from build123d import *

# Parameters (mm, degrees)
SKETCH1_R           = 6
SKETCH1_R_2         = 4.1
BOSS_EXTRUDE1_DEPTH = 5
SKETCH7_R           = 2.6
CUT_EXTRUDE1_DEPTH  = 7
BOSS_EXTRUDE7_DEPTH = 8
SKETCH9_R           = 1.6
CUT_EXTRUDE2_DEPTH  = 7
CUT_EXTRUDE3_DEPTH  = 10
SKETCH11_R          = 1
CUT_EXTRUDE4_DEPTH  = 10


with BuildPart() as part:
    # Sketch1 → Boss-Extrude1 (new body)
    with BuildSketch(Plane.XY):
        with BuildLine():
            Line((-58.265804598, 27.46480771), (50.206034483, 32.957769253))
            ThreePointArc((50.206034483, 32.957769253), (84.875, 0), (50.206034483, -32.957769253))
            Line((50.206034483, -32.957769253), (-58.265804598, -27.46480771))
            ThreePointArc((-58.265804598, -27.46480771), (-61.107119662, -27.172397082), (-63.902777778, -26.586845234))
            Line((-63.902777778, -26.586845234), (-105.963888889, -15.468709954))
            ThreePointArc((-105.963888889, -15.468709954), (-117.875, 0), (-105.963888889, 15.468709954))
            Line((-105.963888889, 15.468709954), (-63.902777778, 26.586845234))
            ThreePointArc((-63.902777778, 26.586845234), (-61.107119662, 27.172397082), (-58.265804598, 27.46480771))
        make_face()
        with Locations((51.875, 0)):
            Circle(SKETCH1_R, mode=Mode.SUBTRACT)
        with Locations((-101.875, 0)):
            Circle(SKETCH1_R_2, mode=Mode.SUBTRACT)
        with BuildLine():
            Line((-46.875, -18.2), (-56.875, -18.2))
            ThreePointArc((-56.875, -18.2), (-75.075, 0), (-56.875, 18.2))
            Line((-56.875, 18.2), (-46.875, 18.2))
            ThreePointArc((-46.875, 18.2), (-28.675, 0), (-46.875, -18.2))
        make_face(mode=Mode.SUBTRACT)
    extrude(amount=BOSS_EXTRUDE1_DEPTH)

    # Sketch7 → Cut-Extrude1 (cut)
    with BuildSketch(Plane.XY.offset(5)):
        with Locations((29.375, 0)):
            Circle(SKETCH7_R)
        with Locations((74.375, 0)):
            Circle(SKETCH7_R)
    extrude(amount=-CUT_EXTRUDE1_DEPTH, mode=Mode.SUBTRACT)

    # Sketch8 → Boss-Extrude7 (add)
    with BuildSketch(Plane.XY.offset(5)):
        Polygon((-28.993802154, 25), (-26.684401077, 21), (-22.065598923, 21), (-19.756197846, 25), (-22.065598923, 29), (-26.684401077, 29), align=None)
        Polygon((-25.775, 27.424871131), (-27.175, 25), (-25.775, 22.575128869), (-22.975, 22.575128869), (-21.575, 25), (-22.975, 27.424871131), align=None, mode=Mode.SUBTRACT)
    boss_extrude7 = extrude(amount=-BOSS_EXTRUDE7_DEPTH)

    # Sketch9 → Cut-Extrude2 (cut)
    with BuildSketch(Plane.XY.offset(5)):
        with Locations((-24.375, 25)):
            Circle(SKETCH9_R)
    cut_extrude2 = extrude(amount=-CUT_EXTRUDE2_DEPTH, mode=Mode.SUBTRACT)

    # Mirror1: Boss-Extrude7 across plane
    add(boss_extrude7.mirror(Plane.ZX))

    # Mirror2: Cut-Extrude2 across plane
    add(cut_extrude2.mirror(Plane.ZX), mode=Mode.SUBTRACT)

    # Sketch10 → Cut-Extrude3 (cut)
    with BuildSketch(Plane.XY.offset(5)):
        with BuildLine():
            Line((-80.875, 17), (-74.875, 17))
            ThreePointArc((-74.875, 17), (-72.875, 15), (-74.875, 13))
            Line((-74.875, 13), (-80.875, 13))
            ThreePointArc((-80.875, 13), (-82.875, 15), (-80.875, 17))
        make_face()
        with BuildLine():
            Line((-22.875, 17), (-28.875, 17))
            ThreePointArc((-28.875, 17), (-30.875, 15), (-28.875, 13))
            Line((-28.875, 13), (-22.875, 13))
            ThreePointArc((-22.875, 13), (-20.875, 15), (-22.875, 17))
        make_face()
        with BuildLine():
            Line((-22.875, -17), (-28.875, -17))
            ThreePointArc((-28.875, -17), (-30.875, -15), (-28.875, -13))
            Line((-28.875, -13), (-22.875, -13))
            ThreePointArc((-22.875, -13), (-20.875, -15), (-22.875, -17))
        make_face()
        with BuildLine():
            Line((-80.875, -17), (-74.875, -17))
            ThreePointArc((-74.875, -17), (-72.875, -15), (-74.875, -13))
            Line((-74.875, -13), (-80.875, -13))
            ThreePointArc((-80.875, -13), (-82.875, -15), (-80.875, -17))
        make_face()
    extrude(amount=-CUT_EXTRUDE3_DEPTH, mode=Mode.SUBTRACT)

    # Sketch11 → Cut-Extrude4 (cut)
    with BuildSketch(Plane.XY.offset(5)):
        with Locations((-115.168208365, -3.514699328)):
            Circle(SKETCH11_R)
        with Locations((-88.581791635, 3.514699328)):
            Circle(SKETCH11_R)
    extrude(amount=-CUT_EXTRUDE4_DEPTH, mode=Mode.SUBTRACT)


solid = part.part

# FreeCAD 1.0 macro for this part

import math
import FreeCAD as App
import Part
import Sketcher
Q = App.Units.Quantity


def add_polygon(sketch, points):
    """Adds a closed chain of lines whose ends are joined by coincident constraints."""
    first, n = sketch.GeometryCount, len(points)
    for a, b in zip(points, points[1:] + points[:1]):
        sketch.addGeometry(Part.LineSegment(App.Vector(*a, 0), App.Vector(*b, 0)), False)
    for i in range(n):
        sketch.addConstraint(Sketcher.Constraint("Coincident", first + i, 2, first + (i + 1) % n, 1))

doc = App.newDocument("Part")
params = doc.addObject("Spreadsheet::Sheet", "Params")
for row, (alias, value) in enumerate([
    ("sketch1_diameter", "12 mm"),
    ("sketch1_radius", "16 mm"),
    ("sketch1_radius2", "33 mm"),
    ("sketch1_diameter2", "8.2 mm"),
    ("sketch1_radius3", "27.5 mm"),
    ("pad1_length", "5 mm"),
    ("sketch2_diameter", "5.2 mm"),
    ("pocket1_length", "7 mm"),
    ("sketch3_width", "2.8 mm"),
    ("sketch3_length", "2.8 mm"),
    ("pad2_length", "8 mm"),
    ("sketch4_diameter", "3.2 mm"),
    ("pocket2_length", "7 mm"),
    ("sketch5_radius", "2 mm"),
    ("sketch5_width", "6 mm"),
    ("pocket3_length", "10 mm"),
    ("sketch6_diameter", "2 mm"),
    ("pocket4_length", "10 mm"),
], start=1):
    params.set(f"A{row}", alias)
    params.set(f"B{row}", "=" + value)
    params.setAlias(f"B{row}", alias)

body = doc.addObject("PartDesign::Body", "Body")

sketch1 = body.newObject("Sketcher::SketchObject", "Sketch")
sketch1.AttachmentSupport = (doc.getObject("XY_Plane"), [""])
sketch1.MapMode = "FlatFace"
sketch1.addGeometry([
    Part.LineSegment(App.Vector(50.206034, 32.957769, 0), App.Vector(-58.265805, 27.464808, 0)),
    Part.ArcOfCircle(Part.Circle(App.Vector(-56.875, 0, 0), App.Vector(0, 0, 1), 27.5), math.radians(92.898954), math.radians(104.806507)),
    Part.LineSegment(App.Vector(-63.902778, 26.586845, 0), App.Vector(-105.963889, 15.46871, 0)),
    Part.ArcOfCircle(Part.Circle(App.Vector(-101.875, 0, 0), App.Vector(0, 0, 1), 16), math.radians(104.806507), math.radians(255.193493)),
    Part.LineSegment(App.Vector(-105.963889, -15.46871, 0), App.Vector(-63.902778, -26.586845, 0)),
    Part.ArcOfCircle(Part.Circle(App.Vector(-56.875, 0, 0), App.Vector(0, 0, 1), 27.5), math.radians(-104.806507), math.radians(-92.898954)),
    Part.LineSegment(App.Vector(-58.265805, -27.464808, 0), App.Vector(50.206034, -32.957769, 0)),
    Part.ArcOfCircle(Part.Circle(App.Vector(51.875, 0, 0), App.Vector(0, 0, 1), 33), math.radians(-92.898954), math.radians(92.898954)),
    Part.Circle(App.Vector(51.875, 0, 0), App.Vector(0, 0, 1), 6),
    Part.LineSegment(App.Vector(-46.875, -18.2, 0), App.Vector(-56.875, -18.2, 0)),
    Part.ArcOfCircle(Part.Circle(App.Vector(-56.875, 0, 0), App.Vector(0, 0, 1), 18.2), math.radians(90), math.radians(270)),
    Part.LineSegment(App.Vector(-56.875, 18.2, 0), App.Vector(-46.875, 18.2, 0)),
    Part.ArcOfCircle(Part.Circle(App.Vector(-46.875, 0, 0), App.Vector(0, 0, 1), 18.2), math.radians(-90), math.radians(90)),
    Part.Circle(App.Vector(-101.875, 0, 0), App.Vector(0, 0, 1), 4.1),
], False)
sketch1.addConstraint([
    Sketcher.Constraint("Tangent", 0, 2, 1, 1),
    Sketcher.Constraint("Tangent", 1, 2, 2, 1),
    Sketcher.Constraint("Tangent", 2, 2, 3, 1),
    Sketcher.Constraint("Tangent", 3, 2, 4, 1),
    Sketcher.Constraint("Tangent", 4, 2, 5, 1),
    Sketcher.Constraint("Tangent", 5, 2, 6, 1),
    Sketcher.Constraint("Tangent", 6, 2, 7, 1),
    Sketcher.Constraint("Tangent", 7, 2, 0, 1),
    Sketcher.Constraint("Tangent", 9, 2, 10, 2),
    Sketcher.Constraint("Tangent", 10, 1, 11, 1),
    Sketcher.Constraint("Tangent", 11, 2, 12, 2),
    Sketcher.Constraint("Tangent", 12, 1, 9, 1),
    Sketcher.Constraint("Horizontal", 9),
    Sketcher.Constraint("Horizontal", 11),
    Sketcher.Constraint("Coincident", 5, 3, 1, 3),
    Sketcher.Constraint("Coincident", 8, 3, 7, 3),
    Sketcher.Constraint("Coincident", 10, 3, 1, 3),
    Sketcher.Constraint("Coincident", 13, 3, 3, 3),
    Sketcher.Constraint("Equal", 1, 5),
    Sketcher.Constraint("Symmetric", 2, 2, 3, 2, -1),
    Sketcher.Constraint("PointOnObject", 7, 3, -1),
    Sketcher.Constraint("Diameter", 8, Q("12 mm")),
    Sketcher.Constraint("Radius", 3, Q("16 mm")),
    Sketcher.Constraint("Radius", 7, Q("33 mm")),
    Sketcher.Constraint("Diameter", 13, Q("8.2 mm")),
    Sketcher.Constraint("Radius", 1, Q("27.5 mm")),
    Sketcher.Constraint("Radius", 10, Q("18.2 mm")),
    Sketcher.Constraint("DistanceX", 9, 2, 9, 1, Q("10 mm")),
    Sketcher.Constraint("DistanceX", 3, 3, 1, 3, Q("45 mm")),
    Sketcher.Constraint("DistanceX", 1, 3, 7, 3, Q("108.75 mm")),
    Sketcher.Constraint("DistanceX", 1, 3, -1, 1, Q("56.875 mm")),
])
sketch1.setExpression("Constraints[21]", "Params.sketch1_diameter")
sketch1.setExpression("Constraints[22]", "Params.sketch1_radius")
sketch1.setExpression("Constraints[23]", "Params.sketch1_radius2")
sketch1.setExpression("Constraints[24]", "Params.sketch1_diameter2")
sketch1.setExpression("Constraints[25]", "Params.sketch1_radius3")
pad1 = body.newObject("PartDesign::Pad", "Pad")
pad1.Profile = sketch1
pad1.setExpression("Length", "Params.pad1_length")

sketch2 = body.newObject("Sketcher::SketchObject", "Sketch001")
sketch2.AttachmentSupport = (doc.getObject("XY_Plane"), [""])
sketch2.MapMode = "FlatFace"
sketch2.AttachmentOffset = App.Placement(App.Vector(0, 0, 5), App.Rotation())
sketch2.addGeometry([
    Part.Circle(App.Vector(29.375, 0, 0), App.Vector(0, 0, 1), 2.6),
    Part.Circle(App.Vector(74.375, 0, 0), App.Vector(0, 0, 1), 2.6),
], False)
sketch2.addConstraint([
    Sketcher.Constraint("Equal", 0, 1),
    Sketcher.Constraint("PointOnObject", 0, 3, -1),
    Sketcher.Constraint("PointOnObject", 1, 3, -1),
    Sketcher.Constraint("Diameter", 0, Q("5.2 mm")),
    Sketcher.Constraint("DistanceX", 0, 3, 1, 3, Q("45 mm")),
    Sketcher.Constraint("DistanceX", -1, 1, 0, 3, Q("29.375 mm")),
])
sketch2.setExpression("Constraints[3]", "Params.sketch2_diameter")
pocket1 = body.newObject("PartDesign::Pocket", "Pocket")
pocket1.Profile = sketch2
pocket1.setExpression("Length", "Params.pocket1_length")

sketch3 = body.newObject("Sketcher::SketchObject", "Sketch002")
sketch3.AttachmentSupport = (doc.getObject("XY_Plane"), [""])
sketch3.MapMode = "FlatFace"
sketch3.AttachmentOffset = App.Placement(App.Vector(0, 0, 5), App.Rotation())
add_polygon(sketch3, [(-28.993802, 25), (-26.684401, 21), (-22.065599, 21), (-19.756198, 25), (-22.065599, 29), (-26.684401, 29)])
add_polygon(sketch3, [(-27.175, 25), (-25.775, 27.424871), (-22.975, 27.424871), (-21.575, 25), (-22.975, 22.575129), (-25.775, 22.575129)])
sketch3.addConstraint([
    Sketcher.Constraint("Horizontal", 1),
    Sketcher.Constraint("Horizontal", 4),
    Sketcher.Constraint("Horizontal", 7),
    Sketcher.Constraint("Horizontal", 10),
    Sketcher.Constraint("Parallel", 0, 3),
    Sketcher.Constraint("Parallel", 2, 5),
    Sketcher.Constraint("Parallel", 5, 6),
    Sketcher.Constraint("Parallel", 3, 8),
    Sketcher.Constraint("Parallel", 6, 9),
    Sketcher.Constraint("Parallel", 8, 11),
    Sketcher.Constraint("Horizontal", 2, 2, 5, 2),
    Sketcher.Constraint("Horizontal", 5, 2, 8, 2),
    Sketcher.Constraint("Horizontal", 8, 2, 11, 2),
    Sketcher.Constraint("Vertical", 1, 2, 3, 2),
    Sketcher.Constraint("Vertical", 0, 2, 4, 2),
    Sketcher.Constraint("Vertical", 7, 2, 9, 2),
    Sketcher.Constraint("Angle", 0, Q("-60 deg")),
    Sketcher.Constraint("DistanceX", 7, 1, 7, 2, Q("2.8 mm")),
    Sketcher.Constraint("DistanceY", -1, 1, 0, 2, Q("21 mm")),
    Sketcher.Constraint("DistanceY", -1, 1, 2, 2, Q("25 mm")),
    Sketcher.Constraint("Distance", 6, Q("2.8 mm")),
    Sketcher.Constraint("DistanceX", 6, 2, -1, 1, Q("25.775 mm")),
    Sketcher.Constraint("DistanceX", 0, 2, -1, 1, Q("26.684401 mm")),
    Sketcher.Constraint("DistanceX", 1, 2, -1, 1, Q("22.065599 mm")),
])
sketch3.setExpression("Constraints[29]", "Params.sketch3_width")
sketch3.setExpression("Constraints[32]", "Params.sketch3_length")
pad2 = body.newObject("PartDesign::Pad", "Pad001")
pad2.Profile = sketch3
pad2.setExpression("Length", "Params.pad2_length")
pad2.Reversed = True

sketch4 = body.newObject("Sketcher::SketchObject", "Sketch003")
sketch4.AttachmentSupport = (doc.getObject("XY_Plane"), [""])
sketch4.MapMode = "FlatFace"
sketch4.AttachmentOffset = App.Placement(App.Vector(0, 0, 5), App.Rotation())
sketch4.addGeometry(Part.Circle(App.Vector(-24.375, 25, 0), App.Vector(0, 0, 1), 1.6), False)
sketch4.addConstraint([
    Sketcher.Constraint("Diameter", 0, Q("3.2 mm")),
    Sketcher.Constraint("DistanceY", -1, 1, 0, 3, Q("25 mm")),
    Sketcher.Constraint("DistanceX", 0, 3, -1, 1, Q("24.375 mm")),
])
sketch4.setExpression("Constraints[0]", "Params.sketch4_diameter")
pocket2 = body.newObject("PartDesign::Pocket", "Pocket001")
pocket2.Profile = sketch4
pocket2.setExpression("Length", "Params.pocket2_length")
doc.recompute()

mirrored = body.newObject("PartDesign::Mirrored", "Mirrored")
mirrored.Originals = [pad2]
mirrored.MirrorPlane = (doc.getObject("XZ_Plane"), [""])
body.Tip = mirrored
doc.recompute()

mirrored2 = body.newObject("PartDesign::Mirrored", "Mirrored001")
mirrored2.Originals = [pocket2]
mirrored2.MirrorPlane = (doc.getObject("XZ_Plane"), [""])
body.Tip = mirrored2

sketch5 = body.newObject("Sketcher::SketchObject", "Sketch004")
sketch5.AttachmentSupport = (doc.getObject("XY_Plane"), [""])
sketch5.MapMode = "FlatFace"
sketch5.AttachmentOffset = App.Placement(App.Vector(0, 0, 5), App.Rotation())
sketch5.addGeometry([
    Part.LineSegment(App.Vector(-74.875, 17, 0), App.Vector(-80.875, 17, 0)),
    Part.ArcOfCircle(Part.Circle(App.Vector(-80.875, 15, 0), App.Vector(0, 0, 1), 2), math.radians(90), math.radians(270)),
    Part.LineSegment(App.Vector(-80.875, 13, 0), App.Vector(-74.875, 13, 0)),
    Part.ArcOfCircle(Part.Circle(App.Vector(-74.875, 15, 0), App.Vector(0, 0, 1), 2), math.radians(-90), math.radians(90)),
    Part.LineSegment(App.Vector(-22.875, 17, 0), App.Vector(-28.875, 17, 0)),
    Part.ArcOfCircle(Part.Circle(App.Vector(-28.875, 15, 0), App.Vector(0, 0, 1), 2), math.radians(90), math.radians(270)),
    Part.LineSegment(App.Vector(-28.875, 13, 0), App.Vector(-22.875, 13, 0)),
    Part.ArcOfCircle(Part.Circle(App.Vector(-22.875, 15, 0), App.Vector(0, 0, 1), 2), math.radians(-90), math.radians(90)),
    Part.LineSegment(App.Vector(-28.875, -17, 0), App.Vector(-22.875, -17, 0)),
    Part.ArcOfCircle(Part.Circle(App.Vector(-22.875, -15, 0), App.Vector(0, 0, 1), 2), math.radians(-90), math.radians(90)),
    Part.LineSegment(App.Vector(-22.875, -13, 0), App.Vector(-28.875, -13, 0)),
    Part.ArcOfCircle(Part.Circle(App.Vector(-28.875, -15, 0), App.Vector(0, 0, 1), 2), math.radians(90), math.radians(270)),
    Part.LineSegment(App.Vector(-80.875, -17, 0), App.Vector(-74.875, -17, 0)),
    Part.ArcOfCircle(Part.Circle(App.Vector(-74.875, -15, 0), App.Vector(0, 0, 1), 2), math.radians(-90), math.radians(90)),
    Part.LineSegment(App.Vector(-74.875, -13, 0), App.Vector(-80.875, -13, 0)),
    Part.ArcOfCircle(Part.Circle(App.Vector(-80.875, -15, 0), App.Vector(0, 0, 1), 2), math.radians(90), math.radians(270)),
], False)
sketch5.addConstraint([
    Sketcher.Constraint("Tangent", 0, 2, 1, 1),
    Sketcher.Constraint("Tangent", 1, 2, 2, 1),
    Sketcher.Constraint("Tangent", 2, 2, 3, 1),
    Sketcher.Constraint("Tangent", 3, 2, 0, 1),
    Sketcher.Constraint("Tangent", 4, 2, 5, 1),
    Sketcher.Constraint("Tangent", 5, 2, 6, 1),
    Sketcher.Constraint("Tangent", 6, 2, 7, 1),
    Sketcher.Constraint("Tangent", 7, 2, 4, 1),
    Sketcher.Constraint("Tangent", 8, 2, 9, 1),
    Sketcher.Constraint("Tangent", 9, 2, 10, 1),
    Sketcher.Constraint("Tangent", 10, 2, 11, 1),
    Sketcher.Constraint("Tangent", 11, 2, 8, 1),
    Sketcher.Constraint("Tangent", 12, 2, 13, 1),
    Sketcher.Constraint("Tangent", 13, 2, 14, 1),
    Sketcher.Constraint("Tangent", 14, 2, 15, 1),
    Sketcher.Constraint("Tangent", 15, 2, 12, 1),
    Sketcher.Constraint("Horizontal", 0),
    Sketcher.Constraint("Horizontal", 2),
    Sketcher.Constraint("Horizontal", 4),
    Sketcher.Constraint("Horizontal", 6),
    Sketcher.Constraint("Horizontal", 8),
    Sketcher.Constraint("Horizontal", 10),
    Sketcher.Constraint("Horizontal", 12),
    Sketcher.Constraint("Horizontal", 14),
    Sketcher.Constraint("Equal", 3, 5),
    Sketcher.Constraint("Equal", 7, 9),
    Sketcher.Constraint("Equal", 11, 13),
    Sketcher.Constraint("Symmetric", 7, 3, 9, 3, -1),
    Sketcher.Constraint("Symmetric", 3, 3, 13, 3, -1),
    Sketcher.Constraint("Horizontal", 3, 3, 5, 3),
    Sketcher.Constraint("Vertical", 5, 3, 11, 3),
    Sketcher.Constraint("Vertical", 1, 3, 15, 3),
    Sketcher.Constraint("Equal", 2, 4),
    Sketcher.Constraint("Radius", 1, Q("2 mm")),
    Sketcher.Constraint("DistanceX", 0, 2, 0, 1, Q("6 mm")),
    Sketcher.Constraint("DistanceY", -1, 1, 1, 3, Q("15 mm")),
    Sketcher.Constraint("DistanceX", 3, 3, 5, 3, Q("46 mm")),
    Sketcher.Constraint("DistanceX", 1, 3, -1, 1, Q("80.875 mm")),
])
sketch5.setExpression("Constraints[33]", "Params.sketch5_radius")
sketch5.setExpression("Constraints[34]", "Params.sketch5_width")
pocket3 = body.newObject("PartDesign::Pocket", "Pocket002")
pocket3.Profile = sketch5
pocket3.setExpression("Length", "Params.pocket3_length")

sketch6 = body.newObject("Sketcher::SketchObject", "Sketch005")
sketch6.AttachmentSupport = (doc.getObject("XY_Plane"), [""])
sketch6.MapMode = "FlatFace"
sketch6.AttachmentOffset = App.Placement(App.Vector(0, 0, 5), App.Rotation())
sketch6.addGeometry([
    Part.Circle(App.Vector(-115.168208, -3.514699, 0), App.Vector(0, 0, 1), 1),
    Part.Circle(App.Vector(-88.581792, 3.514699, 0), App.Vector(0, 0, 1), 1),
], False)
sketch6.addConstraint([
    Sketcher.Constraint("Equal", 0, 1),
    Sketcher.Constraint("Diameter", 0, Q("2 mm")),
    Sketcher.Constraint("DistanceY", 0, 3, -1, 1, Q("3.514699 mm")),
    Sketcher.Constraint("DistanceY", -1, 1, 1, 3, Q("3.514699 mm")),
    Sketcher.Constraint("DistanceX", 0, 3, -1, 1, Q("115.168208 mm")),
    Sketcher.Constraint("DistanceX", 1, 3, -1, 1, Q("88.581792 mm")),
])
sketch6.setExpression("Constraints[1]", "Params.sketch6_diameter")
pocket4 = body.newObject("PartDesign::Pocket", "Pocket003")
pocket4.Profile = sketch6
pocket4.setExpression("Length", "Params.pocket4_length")

doc.recompute()
